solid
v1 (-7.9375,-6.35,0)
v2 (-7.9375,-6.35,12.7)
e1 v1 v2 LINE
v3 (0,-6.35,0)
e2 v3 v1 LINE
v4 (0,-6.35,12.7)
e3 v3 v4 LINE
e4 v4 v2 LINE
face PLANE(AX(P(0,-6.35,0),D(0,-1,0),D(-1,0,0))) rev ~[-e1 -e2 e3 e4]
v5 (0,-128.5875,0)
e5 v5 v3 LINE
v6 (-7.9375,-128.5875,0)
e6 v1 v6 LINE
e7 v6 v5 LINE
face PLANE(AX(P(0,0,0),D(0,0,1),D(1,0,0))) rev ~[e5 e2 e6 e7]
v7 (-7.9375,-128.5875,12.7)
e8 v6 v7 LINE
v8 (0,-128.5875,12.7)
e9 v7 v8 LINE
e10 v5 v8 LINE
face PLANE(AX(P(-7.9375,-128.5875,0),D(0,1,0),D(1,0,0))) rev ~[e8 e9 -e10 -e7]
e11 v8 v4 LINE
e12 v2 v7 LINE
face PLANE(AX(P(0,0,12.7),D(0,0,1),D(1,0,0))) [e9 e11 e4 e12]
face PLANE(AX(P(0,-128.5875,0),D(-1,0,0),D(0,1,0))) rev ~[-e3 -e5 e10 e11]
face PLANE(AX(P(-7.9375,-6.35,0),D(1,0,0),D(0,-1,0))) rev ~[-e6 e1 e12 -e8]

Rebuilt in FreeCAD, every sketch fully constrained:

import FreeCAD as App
import Part
import Sketcher

V = App.Vector
Q = App.Units.Quantity


def add_polygon(sketch, points):
    """Adds a closed chain of lines whose ends are joined by coincident constraints."""
    first, n = sketch.GeometryCount, len(points)
    for a, b in zip(points, points[1:] + points[:1]):
        sketch.addGeometry(Part.LineSegment(App.Vector(*a, 0), App.Vector(*b, 0)), False)
    for i in range(n):
        sketch.addConstraint(Sketcher.Constraint("Coincident", first + i, 2, first + (i + 1) % n, 1))

doc = App.newDocument("Part")
body = doc.addObject("PartDesign::Body", "Body")

# Sketch on XY plane
sketch1 = body.newObject("Sketcher::SketchObject", "Sketch")
sketch1.AttachmentSupport = (doc.getObject("XY_Plane"), [""])
sketch1.MapMode = "FlatFace"
add_polygon(sketch1, [(0, -129), (0, -6), (-8, -6), (-8, -129)])  # lines 0-3
sketch1.addConstraint(Sketcher.Constraint("Vertical", 0))
sketch1.addConstraint(Sketcher.Constraint("Horizontal", 1))
sketch1.addConstraint(Sketcher.Constraint("Vertical", 2))
sketch1.addConstraint(Sketcher.Constraint("Horizontal", 3))
sketch1.addConstraint(Sketcher.Constraint("PointOnObject", 0, 2, -2))
sketch1.addConstraint(Sketcher.Constraint("DistanceX", 1, 2, 1, 1, Q("0.3125 in")))
sketch1.addConstraint(Sketcher.Constraint("DistanceY", 0, 1, 0, 2, Q("4.8125 in")))
sketch1.addConstraint(Sketcher.Constraint("DistanceY", 0, 2, -1, 1, Q("0.25 in")))
pad1 = body.newObject("PartDesign::Pad", "Pad")
pad1.Profile = sketch1
pad1.Length = Q("0.5 in")

doc.recompute()
